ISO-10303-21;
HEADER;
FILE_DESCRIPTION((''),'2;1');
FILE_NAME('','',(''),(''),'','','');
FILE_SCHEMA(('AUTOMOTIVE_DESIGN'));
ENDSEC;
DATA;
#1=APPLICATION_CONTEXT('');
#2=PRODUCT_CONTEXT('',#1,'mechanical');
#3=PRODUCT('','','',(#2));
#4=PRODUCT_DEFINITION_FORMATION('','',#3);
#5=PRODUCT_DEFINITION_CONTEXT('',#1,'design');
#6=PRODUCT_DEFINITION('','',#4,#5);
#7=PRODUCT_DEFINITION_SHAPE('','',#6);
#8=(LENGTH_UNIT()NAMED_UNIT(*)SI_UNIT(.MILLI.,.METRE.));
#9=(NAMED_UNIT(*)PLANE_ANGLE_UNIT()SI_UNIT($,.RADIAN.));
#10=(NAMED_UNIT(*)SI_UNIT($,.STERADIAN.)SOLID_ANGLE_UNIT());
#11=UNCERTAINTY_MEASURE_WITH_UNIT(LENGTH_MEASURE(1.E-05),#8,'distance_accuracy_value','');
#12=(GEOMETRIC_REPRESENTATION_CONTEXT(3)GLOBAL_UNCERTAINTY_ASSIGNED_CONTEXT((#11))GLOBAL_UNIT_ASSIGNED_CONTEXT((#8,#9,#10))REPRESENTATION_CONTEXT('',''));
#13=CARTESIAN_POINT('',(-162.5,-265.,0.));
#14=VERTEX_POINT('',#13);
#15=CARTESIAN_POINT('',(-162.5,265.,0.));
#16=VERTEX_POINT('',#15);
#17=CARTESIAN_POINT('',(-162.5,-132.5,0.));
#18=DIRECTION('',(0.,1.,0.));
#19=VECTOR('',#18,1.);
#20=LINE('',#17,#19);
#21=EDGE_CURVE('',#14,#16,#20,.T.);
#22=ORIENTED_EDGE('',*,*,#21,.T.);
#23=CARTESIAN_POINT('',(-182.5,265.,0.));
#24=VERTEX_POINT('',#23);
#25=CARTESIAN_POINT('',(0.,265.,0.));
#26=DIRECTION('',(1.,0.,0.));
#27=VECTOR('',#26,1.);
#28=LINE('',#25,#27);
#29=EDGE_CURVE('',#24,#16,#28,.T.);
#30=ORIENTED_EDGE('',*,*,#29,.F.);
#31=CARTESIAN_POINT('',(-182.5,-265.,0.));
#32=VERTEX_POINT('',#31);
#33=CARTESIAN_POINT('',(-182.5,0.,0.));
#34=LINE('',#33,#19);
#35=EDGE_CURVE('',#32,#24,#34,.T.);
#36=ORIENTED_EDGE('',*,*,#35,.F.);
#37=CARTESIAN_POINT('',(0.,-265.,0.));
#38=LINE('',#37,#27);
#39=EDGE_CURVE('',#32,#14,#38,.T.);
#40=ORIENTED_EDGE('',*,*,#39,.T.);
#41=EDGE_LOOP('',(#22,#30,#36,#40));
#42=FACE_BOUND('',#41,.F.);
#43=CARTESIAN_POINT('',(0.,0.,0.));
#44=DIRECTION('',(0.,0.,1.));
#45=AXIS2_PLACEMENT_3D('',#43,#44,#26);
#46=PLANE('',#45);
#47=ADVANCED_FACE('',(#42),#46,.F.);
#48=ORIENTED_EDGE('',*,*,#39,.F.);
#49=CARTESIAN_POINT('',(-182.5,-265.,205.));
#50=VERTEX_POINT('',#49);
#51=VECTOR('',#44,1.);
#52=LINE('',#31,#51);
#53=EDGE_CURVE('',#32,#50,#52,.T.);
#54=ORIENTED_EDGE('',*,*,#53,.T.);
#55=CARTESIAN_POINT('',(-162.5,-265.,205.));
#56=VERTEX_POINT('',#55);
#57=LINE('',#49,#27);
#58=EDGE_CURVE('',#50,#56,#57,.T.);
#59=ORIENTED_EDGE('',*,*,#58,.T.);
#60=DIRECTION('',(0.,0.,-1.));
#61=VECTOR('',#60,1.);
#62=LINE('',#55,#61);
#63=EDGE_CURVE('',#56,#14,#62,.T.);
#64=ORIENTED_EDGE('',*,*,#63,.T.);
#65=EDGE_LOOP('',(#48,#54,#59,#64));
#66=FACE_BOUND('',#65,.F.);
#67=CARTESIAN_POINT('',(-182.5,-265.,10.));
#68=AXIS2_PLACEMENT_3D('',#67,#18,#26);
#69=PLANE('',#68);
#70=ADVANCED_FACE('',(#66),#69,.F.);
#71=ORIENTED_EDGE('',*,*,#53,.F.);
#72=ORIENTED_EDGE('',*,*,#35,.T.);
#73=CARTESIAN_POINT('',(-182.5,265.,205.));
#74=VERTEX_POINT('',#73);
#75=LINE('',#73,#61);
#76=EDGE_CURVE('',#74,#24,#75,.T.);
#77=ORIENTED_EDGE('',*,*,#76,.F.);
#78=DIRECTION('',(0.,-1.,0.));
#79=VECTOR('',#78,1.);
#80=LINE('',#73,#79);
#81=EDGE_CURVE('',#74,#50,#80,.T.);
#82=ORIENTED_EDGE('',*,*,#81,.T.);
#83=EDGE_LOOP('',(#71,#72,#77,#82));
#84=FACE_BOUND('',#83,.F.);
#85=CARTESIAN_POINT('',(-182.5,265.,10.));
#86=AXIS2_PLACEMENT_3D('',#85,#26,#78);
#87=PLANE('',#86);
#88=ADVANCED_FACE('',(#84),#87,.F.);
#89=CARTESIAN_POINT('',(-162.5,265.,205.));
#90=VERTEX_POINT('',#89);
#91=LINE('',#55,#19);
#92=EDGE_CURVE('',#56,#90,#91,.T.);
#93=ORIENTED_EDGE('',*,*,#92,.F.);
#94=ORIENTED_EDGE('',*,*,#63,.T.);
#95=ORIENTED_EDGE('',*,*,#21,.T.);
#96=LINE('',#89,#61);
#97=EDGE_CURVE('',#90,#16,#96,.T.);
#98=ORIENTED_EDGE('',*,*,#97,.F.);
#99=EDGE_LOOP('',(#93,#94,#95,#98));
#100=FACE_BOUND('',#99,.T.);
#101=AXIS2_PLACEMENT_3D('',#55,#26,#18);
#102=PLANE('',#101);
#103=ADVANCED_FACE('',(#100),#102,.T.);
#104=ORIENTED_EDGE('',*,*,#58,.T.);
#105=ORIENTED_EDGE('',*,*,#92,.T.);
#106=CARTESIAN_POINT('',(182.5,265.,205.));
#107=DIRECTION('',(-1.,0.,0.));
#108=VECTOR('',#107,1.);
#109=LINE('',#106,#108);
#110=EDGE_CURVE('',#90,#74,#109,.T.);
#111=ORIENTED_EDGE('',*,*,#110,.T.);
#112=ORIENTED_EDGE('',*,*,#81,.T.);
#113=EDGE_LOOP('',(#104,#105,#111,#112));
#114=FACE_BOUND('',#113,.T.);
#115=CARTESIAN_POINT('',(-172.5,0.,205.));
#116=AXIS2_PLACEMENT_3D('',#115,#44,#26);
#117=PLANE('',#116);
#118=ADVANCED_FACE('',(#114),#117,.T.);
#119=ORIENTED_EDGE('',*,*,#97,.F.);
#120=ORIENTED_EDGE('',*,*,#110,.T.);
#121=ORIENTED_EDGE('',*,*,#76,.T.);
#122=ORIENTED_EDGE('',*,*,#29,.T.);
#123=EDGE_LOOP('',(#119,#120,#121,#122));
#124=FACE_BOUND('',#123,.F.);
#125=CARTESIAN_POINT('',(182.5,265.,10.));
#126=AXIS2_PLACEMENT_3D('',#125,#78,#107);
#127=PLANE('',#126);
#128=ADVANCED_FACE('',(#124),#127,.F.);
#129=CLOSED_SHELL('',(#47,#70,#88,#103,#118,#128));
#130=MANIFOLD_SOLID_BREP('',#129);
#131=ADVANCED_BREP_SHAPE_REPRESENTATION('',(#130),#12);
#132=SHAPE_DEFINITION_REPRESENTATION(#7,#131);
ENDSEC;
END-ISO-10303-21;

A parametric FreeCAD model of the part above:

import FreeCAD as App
import Part
import Sketcher
from FreeCAD import Vector
Q = App.Units.Quantity

doc = App.newDocument("Part")
body = doc.addObject("PartDesign::Body", "Body")

sketch1 = doc.addObject("Sketcher::SketchObject", "Sketch")
body.addObject(sketch1)
sketch1.AttachmentSupport = (doc.XY_Plane, [""])
sketch1.MapMode = "FlatFace"
sketch1.addGeometry(Part.LineSegment(Vector(-182.5, 265, 0), Vector(-182.5, -265, 0)), False)
sketch1.addGeometry(Part.LineSegment(Vector(-182.5, -265, 0), Vector(182.5, -265, 0)), False)
sketch1.addGeometry(Part.LineSegment(Vector(182.5, -265, 0), Vector(182.5, 265, 0)), False)
sketch1.addGeometry(Part.LineSegment(Vector(182.5, 265, 0), Vector(-182.5, 265, 0)), False)
sketch1.addConstraint(Sketcher.Constraint("Coincident", 0, 2, 1, 1))
sketch1.addConstraint(Sketcher.Constraint("Coincident", 1, 2, 2, 1))
sketch1.addConstraint(Sketcher.Constraint("Coincident", 2, 2, 3, 1))
sketch1.addConstraint(Sketcher.Constraint("Coincident", 3, 2, 0, 1))
sketch1.addConstraint(Sketcher.Constraint("Vertical", 0))
sketch1.addConstraint(Sketcher.Constraint("Horizontal", 1))
sketch1.addConstraint(Sketcher.Constraint("Vertical", 2))
sketch1.addConstraint(Sketcher.Constraint("Horizontal", 3))
sketch1.addConstraint(Sketcher.Constraint("Symmetric", 0, 2, 2, 2, -1, 1))
sketch1.addConstraint(Sketcher.Constraint("DistanceX", 1, 1, 1, 2, Q("365 mm")))
sketch1.addConstraint(Sketcher.Constraint("DistanceY", 0, 2, 0, 1, Q("530 mm")))
pad1 = doc.addObject("PartDesign::Pad", "Pad")
body.addObject(pad1)
pad1.Profile = sketch1
pad1.Length = 10

sketch2 = doc.addObject("Sketcher::SketchObject", "Sketch001")
body.addObject(sketch2)
sketch2.AttachmentSupport = (doc.XY_Plane, [""])
sketch2.MapMode = "FlatFace"
sketch2.AttachmentOffset = App.Placement(Vector(0, 0, 10), App.Rotation())
sketch2.addGeometry(Part.LineSegment(Vector(-182.5, 265, 0), Vector(-182.5, -265, 0)), False)
sketch2.addGeometry(Part.LineSegment(Vector(-182.5, -265, 0), Vector(182.5, -265, 0)), False)
sketch2.addGeometry(Part.LineSegment(Vector(182.5, -265, 0), Vector(182.5, 265, 0)), False)
sketch2.addGeometry(Part.LineSegment(Vector(182.5, 265, 0), Vector(-182.5, 265, 0)), False)
sketch2.addGeometry(Part.LineSegment(Vector(-162.5, -245, 0), Vector(-162.5, 245, 0)), False)
sketch2.addGeometry(Part.LineSegment(Vector(-162.5, 245, 0), Vector(162.5, 245, 0)), False)
sketch2.addGeometry(Part.LineSegment(Vector(162.5, 245, 0), Vector(162.5, -245, 0)), False)
sketch2.addGeometry(Part.LineSegment(Vector(162.5, -245, 0), Vector(-162.5, -245, 0)), False)
sketch2.addConstraint(Sketcher.Constraint("Coincident", 0, 2, 1, 1))
sketch2.addConstraint(Sketcher.Constraint("Coincident", 1, 2, 2, 1))
sketch2.addConstraint(Sketcher.Constraint("Coincident", 2, 2, 3, 1))
sketch2.addConstraint(Sketcher.Constraint("Coincident", 3, 2, 0, 1))
sketch2.addConstraint(Sketcher.Constraint("Coincident", 4, 2, 5, 1))
sketch2.addConstraint(Sketcher.Constraint("Coincident", 5, 2, 6, 1))
sketch2.addConstraint(Sketcher.Constraint("Coincident", 6, 2, 7, 1))
sketch2.addConstraint(Sketcher.Constraint("Coincident", 7, 2, 4, 1))
sketch2.addConstraint(Sketcher.Constraint("Vertical", 0))
sketch2.addConstraint(Sketcher.Constraint("Horizontal", 1))
sketch2.addConstraint(Sketcher.Constraint("Vertical", 2))
sketch2.addConstraint(Sketcher.Constraint("Horizontal", 3))
sketch2.addConstraint(Sketcher.Constraint("Vertical", 4))
sketch2.addConstraint(Sketcher.Constraint("Horizontal", 5))
sketch2.addConstraint(Sketcher.Constraint("Vertical", 6))
sketch2.addConstraint(Sketcher.Constraint("Horizontal", 7))
sketch2.addConstraint(Sketcher.Constraint("Symmetric", 0, 2, 2, 2, -1, 1))
sketch2.addConstraint(Sketcher.Constraint("Symmetric", 4, 2, 6, 2, -1, 1))
sketch2.addConstraint(Sketcher.Constraint("DistanceX", 1, 1, 1, 2, Q("365 mm")))
sketch2.addConstraint(Sketcher.Constraint("DistanceX", 5, 1, 5, 2, Q("325 mm")))
sketch2.addConstraint(Sketcher.Constraint("DistanceY", 0, 2, 0, 1, Q("530 mm")))
sketch2.addConstraint(Sketcher.Constraint("DistanceY", 4, 1, 4, 2, Q("490 mm")))
pad2 = doc.addObject("PartDesign::Pad", "Pad001")
body.addObject(pad2)
pad2.Profile = sketch2
pad2.Length = 195

sketch3 = doc.addObject("Sketcher::SketchObject", "Sketch002")
body.addObject(sketch3)
sketch3.AttachmentSupport = (doc.XY_Plane, [""])
sketch3.MapMode = "FlatFace"
sketch3.AttachmentOffset = App.Placement(Vector(0, 0, 205), App.Rotation())
sketch3.addGeometry(Part.LineSegment(Vector(-162.5, 265, 0), Vector(-162.5, -265, 0)), False)
sketch3.addGeometry(Part.LineSegment(Vector(-162.5, -265, 0), Vector(182.5, -265, 0)), False)
sketch3.addGeometry(Part.LineSegment(Vector(182.5, -265, 0), Vector(182.5, 265, 0)), False)
sketch3.addGeometry(Part.LineSegment(Vector(182.5, 265, 0), Vector(-162.5, 265, 0)), False)
sketch3.addConstraint(Sketcher.Constraint("Coincident", 0, 2, 1, 1))
sketch3.addConstraint(Sketcher.Constraint("Coincident", 1, 2, 2, 1))
sketch3.addConstraint(Sketcher.Constraint("Coincident", 2, 2, 3, 1))
sketch3.addConstraint(Sketcher.Constraint("Coincident", 3, 2, 0, 1))
sketch3.addConstraint(Sketcher.Constraint("Vertical", 0))
sketch3.addConstraint(Sketcher.Constraint("Horizontal", 1))
sketch3.addConstraint(Sketcher.Constraint("Vertical", 2))
sketch3.addConstraint(Sketcher.Constraint("Horizontal", 3))
sketch3.addConstraint(Sketcher.Constraint("DistanceX", 1, 1, 1, 2, Q("345 mm")))
sketch3.addConstraint(Sketcher.Constraint("DistanceY", 0, 2, 0, 1, Q("530 mm")))
sketch3.addConstraint(Sketcher.Constraint("DistanceY", 0, 2, -1, 1, Q("265 mm")))
sketch3.addConstraint(Sketcher.Constraint("DistanceX", 0, 2, -1, 1, Q("162.5 mm")))
pocket1 = doc.addObject("PartDesign::Pocket", "Pocket")
body.addObject(pocket1)
pocket1.Profile = sketch3
pocket1.Type = "ThroughAll"

doc.recompute()
